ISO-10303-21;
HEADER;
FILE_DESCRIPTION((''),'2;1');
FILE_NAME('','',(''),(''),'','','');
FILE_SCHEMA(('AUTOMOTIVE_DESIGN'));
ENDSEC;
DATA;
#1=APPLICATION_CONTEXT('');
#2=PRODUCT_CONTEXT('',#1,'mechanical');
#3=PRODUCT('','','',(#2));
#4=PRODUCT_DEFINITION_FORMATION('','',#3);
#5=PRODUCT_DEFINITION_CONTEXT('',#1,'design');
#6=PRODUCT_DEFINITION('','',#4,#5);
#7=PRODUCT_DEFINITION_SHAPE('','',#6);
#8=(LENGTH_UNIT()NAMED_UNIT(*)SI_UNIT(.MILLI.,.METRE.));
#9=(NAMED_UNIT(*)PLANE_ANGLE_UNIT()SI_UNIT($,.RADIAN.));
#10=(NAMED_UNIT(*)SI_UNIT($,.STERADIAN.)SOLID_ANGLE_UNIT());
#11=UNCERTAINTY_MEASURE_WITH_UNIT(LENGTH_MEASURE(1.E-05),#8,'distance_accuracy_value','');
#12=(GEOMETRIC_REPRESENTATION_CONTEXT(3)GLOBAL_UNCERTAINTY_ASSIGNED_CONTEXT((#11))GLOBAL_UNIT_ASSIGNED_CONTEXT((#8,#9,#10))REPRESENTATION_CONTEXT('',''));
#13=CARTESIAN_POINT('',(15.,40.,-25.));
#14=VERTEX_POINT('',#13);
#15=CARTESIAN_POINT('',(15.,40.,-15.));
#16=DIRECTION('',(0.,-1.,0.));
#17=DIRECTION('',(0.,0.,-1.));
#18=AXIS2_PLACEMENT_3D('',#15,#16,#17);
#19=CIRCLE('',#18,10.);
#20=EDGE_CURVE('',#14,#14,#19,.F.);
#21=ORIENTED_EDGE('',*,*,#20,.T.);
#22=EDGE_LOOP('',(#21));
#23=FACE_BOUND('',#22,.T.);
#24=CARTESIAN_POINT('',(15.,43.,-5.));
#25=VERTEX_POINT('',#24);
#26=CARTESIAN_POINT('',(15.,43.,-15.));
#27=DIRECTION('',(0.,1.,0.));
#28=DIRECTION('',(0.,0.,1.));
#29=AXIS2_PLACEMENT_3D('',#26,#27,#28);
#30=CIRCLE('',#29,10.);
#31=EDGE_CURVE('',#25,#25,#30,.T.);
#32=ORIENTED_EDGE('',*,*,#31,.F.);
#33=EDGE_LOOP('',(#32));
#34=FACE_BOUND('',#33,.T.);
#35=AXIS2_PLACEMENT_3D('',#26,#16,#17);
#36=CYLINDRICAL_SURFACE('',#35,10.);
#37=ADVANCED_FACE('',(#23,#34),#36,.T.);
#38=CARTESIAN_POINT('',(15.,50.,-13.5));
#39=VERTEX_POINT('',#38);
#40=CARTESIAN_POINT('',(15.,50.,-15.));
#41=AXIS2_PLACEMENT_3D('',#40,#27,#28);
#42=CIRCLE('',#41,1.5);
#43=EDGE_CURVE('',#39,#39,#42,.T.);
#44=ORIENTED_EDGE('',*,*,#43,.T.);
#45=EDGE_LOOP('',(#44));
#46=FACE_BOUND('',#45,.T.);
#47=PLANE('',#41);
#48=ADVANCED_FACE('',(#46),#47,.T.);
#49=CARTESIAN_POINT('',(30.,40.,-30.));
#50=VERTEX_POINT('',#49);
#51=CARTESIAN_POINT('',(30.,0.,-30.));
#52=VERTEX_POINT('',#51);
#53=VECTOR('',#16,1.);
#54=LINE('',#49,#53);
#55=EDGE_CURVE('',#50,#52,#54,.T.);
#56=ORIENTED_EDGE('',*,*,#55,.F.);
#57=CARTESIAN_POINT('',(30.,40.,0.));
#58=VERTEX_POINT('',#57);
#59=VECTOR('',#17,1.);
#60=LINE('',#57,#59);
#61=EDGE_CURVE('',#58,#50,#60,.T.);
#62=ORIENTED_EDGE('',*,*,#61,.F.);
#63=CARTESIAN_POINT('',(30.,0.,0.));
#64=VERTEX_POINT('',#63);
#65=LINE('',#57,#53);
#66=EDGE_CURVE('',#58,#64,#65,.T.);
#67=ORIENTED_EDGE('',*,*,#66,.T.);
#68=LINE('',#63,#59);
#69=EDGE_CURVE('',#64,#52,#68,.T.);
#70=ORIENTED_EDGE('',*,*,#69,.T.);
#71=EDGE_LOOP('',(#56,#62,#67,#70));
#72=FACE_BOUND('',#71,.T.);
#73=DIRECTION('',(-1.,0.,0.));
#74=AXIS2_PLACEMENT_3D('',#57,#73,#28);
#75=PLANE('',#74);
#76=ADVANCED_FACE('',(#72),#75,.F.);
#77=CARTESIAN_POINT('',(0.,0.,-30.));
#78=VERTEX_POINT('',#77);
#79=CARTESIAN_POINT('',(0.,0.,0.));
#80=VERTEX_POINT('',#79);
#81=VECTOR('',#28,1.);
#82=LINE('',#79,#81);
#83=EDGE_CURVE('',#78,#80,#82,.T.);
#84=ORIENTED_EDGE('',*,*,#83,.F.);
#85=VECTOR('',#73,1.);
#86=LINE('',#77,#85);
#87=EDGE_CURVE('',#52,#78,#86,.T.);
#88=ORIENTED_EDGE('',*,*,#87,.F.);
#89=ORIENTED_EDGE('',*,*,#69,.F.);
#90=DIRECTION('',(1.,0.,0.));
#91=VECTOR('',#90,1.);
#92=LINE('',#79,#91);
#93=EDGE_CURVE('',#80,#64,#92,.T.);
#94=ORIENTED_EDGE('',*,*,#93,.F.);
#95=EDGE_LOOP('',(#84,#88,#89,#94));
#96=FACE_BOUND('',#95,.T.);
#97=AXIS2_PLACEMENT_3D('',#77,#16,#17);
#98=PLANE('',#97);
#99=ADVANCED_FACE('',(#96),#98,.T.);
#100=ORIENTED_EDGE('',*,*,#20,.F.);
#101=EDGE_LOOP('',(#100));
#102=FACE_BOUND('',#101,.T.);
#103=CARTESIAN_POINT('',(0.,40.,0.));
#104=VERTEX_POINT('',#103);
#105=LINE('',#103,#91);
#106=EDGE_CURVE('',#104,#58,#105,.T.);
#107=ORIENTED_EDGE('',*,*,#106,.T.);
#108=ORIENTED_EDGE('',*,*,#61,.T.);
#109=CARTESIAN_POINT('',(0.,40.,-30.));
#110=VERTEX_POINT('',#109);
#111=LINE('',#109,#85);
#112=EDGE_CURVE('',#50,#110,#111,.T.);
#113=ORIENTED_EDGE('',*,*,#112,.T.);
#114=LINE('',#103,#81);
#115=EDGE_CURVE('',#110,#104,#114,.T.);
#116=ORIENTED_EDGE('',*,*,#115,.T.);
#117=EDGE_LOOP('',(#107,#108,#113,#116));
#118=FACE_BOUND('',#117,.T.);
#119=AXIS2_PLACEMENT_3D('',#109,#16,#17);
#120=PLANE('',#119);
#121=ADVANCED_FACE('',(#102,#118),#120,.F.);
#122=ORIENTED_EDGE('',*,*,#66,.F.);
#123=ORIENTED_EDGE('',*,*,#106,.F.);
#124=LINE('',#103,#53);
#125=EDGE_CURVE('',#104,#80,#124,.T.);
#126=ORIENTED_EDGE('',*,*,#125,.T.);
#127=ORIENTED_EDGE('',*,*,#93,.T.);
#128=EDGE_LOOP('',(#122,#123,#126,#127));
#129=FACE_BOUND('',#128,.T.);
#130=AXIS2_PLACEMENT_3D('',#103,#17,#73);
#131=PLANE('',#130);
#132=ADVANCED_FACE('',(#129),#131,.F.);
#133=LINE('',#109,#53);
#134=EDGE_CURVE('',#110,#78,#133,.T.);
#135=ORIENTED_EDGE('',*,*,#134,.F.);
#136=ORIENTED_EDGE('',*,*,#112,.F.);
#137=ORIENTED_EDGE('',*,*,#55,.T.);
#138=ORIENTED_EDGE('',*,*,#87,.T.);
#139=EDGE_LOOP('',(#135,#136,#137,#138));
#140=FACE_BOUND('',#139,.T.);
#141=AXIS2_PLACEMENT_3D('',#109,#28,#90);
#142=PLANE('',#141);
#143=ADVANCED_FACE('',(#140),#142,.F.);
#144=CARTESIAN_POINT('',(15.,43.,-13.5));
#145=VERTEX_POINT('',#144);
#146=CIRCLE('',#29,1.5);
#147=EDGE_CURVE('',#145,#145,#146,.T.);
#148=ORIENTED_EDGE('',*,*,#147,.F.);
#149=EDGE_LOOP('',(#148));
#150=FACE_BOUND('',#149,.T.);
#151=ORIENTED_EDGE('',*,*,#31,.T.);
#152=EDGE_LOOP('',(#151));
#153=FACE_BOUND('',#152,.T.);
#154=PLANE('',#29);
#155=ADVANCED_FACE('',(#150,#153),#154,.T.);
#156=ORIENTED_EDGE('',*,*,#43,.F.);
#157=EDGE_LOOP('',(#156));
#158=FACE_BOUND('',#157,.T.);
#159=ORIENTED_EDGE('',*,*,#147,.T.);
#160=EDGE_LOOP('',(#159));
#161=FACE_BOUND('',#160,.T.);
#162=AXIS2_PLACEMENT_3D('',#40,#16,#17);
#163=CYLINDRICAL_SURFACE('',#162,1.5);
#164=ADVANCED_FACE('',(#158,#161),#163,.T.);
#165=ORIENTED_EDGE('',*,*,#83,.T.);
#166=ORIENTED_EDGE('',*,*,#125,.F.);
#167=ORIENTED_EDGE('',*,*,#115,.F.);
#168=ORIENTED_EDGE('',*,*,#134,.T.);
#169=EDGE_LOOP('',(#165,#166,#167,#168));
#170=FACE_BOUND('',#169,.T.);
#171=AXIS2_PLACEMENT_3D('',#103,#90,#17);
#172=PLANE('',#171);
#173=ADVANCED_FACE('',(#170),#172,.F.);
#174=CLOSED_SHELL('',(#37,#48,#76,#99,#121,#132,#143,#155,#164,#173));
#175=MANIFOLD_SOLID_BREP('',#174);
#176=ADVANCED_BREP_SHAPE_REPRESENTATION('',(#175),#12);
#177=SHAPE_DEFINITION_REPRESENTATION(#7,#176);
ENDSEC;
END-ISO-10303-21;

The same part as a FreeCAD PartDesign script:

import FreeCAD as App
import Part
import Sketcher

V = App.Vector


def add_polygon(sketch, points):
    """Adds a closed chain of lines whose ends are joined by coincident constraints."""
    first, n = sketch.GeometryCount, len(points)
    for a, b in zip(points, points[1:] + points[:1]):
        sketch.addGeometry(Part.LineSegment(App.Vector(*a, 0), App.Vector(*b, 0)), False)
    for i in range(n):
        sketch.addConstraint(Sketcher.Constraint("Coincident", first + i, 2, first + (i + 1) % n, 1))

doc = App.newDocument("Part")
params = doc.addObject("Spreadsheet::Sheet", "Params")
for row, (alias, value) in enumerate([
    ("sketch1_width", "30 mm"),
    ("pad1_length", "40 mm"),
    ("sketch2_diameter", "3 mm"),
    ("pad2_length", "10 mm"),
    ("sketch3_diameter", "20 mm"),
    ("pad3_length", "3 mm"),
], start=1):
    params.set(f"A{row}", alias)
    params.set(f"B{row}", "=" + value)
    params.setAlias(f"B{row}", alias)

body = doc.addObject("PartDesign::Body", "Body")

# Sketch on XZ plane
sketch1 = body.newObject("Sketcher::SketchObject", "Sketch")
sketch1.AttachmentSupport = (doc.getObject("XZ_Plane"), [""])
sketch1.MapMode = "FlatFace"
add_polygon(sketch1, [(0, -30), (0, 0), (30, 0), (30, -30)])  # lines 0-3
sketch1.addConstraint(Sketcher.Constraint("Vertical", 0))
sketch1.addConstraint(Sketcher.Constraint("Horizontal", 1))
sketch1.addConstraint(Sketcher.Constraint("Vertical", 2))
sketch1.addConstraint(Sketcher.Constraint("Horizontal", 3))
sketch1.addConstraint(Sketcher.Constraint("Coincident", 0, 2, -1, 1))
sketch1.addConstraint(Sketcher.Constraint("Equal", 3, 0))
sketch1.addConstraint(Sketcher.Constraint("DistanceX", 1, 1, 1, 2, 30.0))
sketch1.setExpression("Constraints[10]", "Params.sketch1_width")
pad1 = body.newObject("PartDesign::Pad", "Pad")
pad1.Profile = sketch1
pad1.setExpression("Length", "Params.pad1_length")
pad1.Reversed = True

# Sketch on XZ plane
sketch2 = body.newObject("Sketcher::SketchObject", "Sketch001")
sketch2.AttachmentSupport = (doc.getObject("XZ_Plane"), [""])
sketch2.MapMode = "FlatFace"
sketch2.AttachmentOffset = App.Placement(V(0, 0, -40), App.Rotation())
sketch2.addGeometry(Part.Circle(V(15, -15, 0), V(0, 0, 1), 1.5), False)
sketch2.addConstraint(Sketcher.Constraint("Diameter", 0, 3.0))
sketch2.addConstraint(Sketcher.Constraint("DistanceX", -1, 1, 0, 3, 15.0))
sketch2.addConstraint(Sketcher.Constraint("DistanceY", 0, 3, -1, 1, 15.0))
sketch2.setExpression("Constraints[0]", "Params.sketch2_diameter")
pad2 = body.newObject("PartDesign::Pad", "Pad001")
pad2.Profile = sketch2
pad2.setExpression("Length", "Params.pad2_length")
pad2.Reversed = True

# Sketch on XZ plane
sketch3 = body.newObject("Sketcher::SketchObject", "Sketch002")
sketch3.AttachmentSupport = (doc.getObject("XZ_Plane"), [""])
sketch3.MapMode = "FlatFace"
sketch3.AttachmentOffset = App.Placement(V(0, 0, -40), App.Rotation())
sketch3.addGeometry(Part.Circle(V(15, -15, 0), V(0, 0, 1), 10), False)
sketch3.addConstraint(Sketcher.Constraint("Diameter", 0, 20.0))
sketch3.addConstraint(Sketcher.Constraint("DistanceX", -1, 1, 0, 3, 15.0))
sketch3.addConstraint(Sketcher.Constraint("DistanceY", 0, 3, -1, 1, 15.0))
sketch3.setExpression("Constraints[0]", "Params.sketch3_diameter")
pad3 = body.newObject("PartDesign::Pad", "Pad002")
pad3.Profile = sketch3
pad3.setExpression("Length", "Params.pad3_length")
pad3.Reversed = True

doc.recompute()
